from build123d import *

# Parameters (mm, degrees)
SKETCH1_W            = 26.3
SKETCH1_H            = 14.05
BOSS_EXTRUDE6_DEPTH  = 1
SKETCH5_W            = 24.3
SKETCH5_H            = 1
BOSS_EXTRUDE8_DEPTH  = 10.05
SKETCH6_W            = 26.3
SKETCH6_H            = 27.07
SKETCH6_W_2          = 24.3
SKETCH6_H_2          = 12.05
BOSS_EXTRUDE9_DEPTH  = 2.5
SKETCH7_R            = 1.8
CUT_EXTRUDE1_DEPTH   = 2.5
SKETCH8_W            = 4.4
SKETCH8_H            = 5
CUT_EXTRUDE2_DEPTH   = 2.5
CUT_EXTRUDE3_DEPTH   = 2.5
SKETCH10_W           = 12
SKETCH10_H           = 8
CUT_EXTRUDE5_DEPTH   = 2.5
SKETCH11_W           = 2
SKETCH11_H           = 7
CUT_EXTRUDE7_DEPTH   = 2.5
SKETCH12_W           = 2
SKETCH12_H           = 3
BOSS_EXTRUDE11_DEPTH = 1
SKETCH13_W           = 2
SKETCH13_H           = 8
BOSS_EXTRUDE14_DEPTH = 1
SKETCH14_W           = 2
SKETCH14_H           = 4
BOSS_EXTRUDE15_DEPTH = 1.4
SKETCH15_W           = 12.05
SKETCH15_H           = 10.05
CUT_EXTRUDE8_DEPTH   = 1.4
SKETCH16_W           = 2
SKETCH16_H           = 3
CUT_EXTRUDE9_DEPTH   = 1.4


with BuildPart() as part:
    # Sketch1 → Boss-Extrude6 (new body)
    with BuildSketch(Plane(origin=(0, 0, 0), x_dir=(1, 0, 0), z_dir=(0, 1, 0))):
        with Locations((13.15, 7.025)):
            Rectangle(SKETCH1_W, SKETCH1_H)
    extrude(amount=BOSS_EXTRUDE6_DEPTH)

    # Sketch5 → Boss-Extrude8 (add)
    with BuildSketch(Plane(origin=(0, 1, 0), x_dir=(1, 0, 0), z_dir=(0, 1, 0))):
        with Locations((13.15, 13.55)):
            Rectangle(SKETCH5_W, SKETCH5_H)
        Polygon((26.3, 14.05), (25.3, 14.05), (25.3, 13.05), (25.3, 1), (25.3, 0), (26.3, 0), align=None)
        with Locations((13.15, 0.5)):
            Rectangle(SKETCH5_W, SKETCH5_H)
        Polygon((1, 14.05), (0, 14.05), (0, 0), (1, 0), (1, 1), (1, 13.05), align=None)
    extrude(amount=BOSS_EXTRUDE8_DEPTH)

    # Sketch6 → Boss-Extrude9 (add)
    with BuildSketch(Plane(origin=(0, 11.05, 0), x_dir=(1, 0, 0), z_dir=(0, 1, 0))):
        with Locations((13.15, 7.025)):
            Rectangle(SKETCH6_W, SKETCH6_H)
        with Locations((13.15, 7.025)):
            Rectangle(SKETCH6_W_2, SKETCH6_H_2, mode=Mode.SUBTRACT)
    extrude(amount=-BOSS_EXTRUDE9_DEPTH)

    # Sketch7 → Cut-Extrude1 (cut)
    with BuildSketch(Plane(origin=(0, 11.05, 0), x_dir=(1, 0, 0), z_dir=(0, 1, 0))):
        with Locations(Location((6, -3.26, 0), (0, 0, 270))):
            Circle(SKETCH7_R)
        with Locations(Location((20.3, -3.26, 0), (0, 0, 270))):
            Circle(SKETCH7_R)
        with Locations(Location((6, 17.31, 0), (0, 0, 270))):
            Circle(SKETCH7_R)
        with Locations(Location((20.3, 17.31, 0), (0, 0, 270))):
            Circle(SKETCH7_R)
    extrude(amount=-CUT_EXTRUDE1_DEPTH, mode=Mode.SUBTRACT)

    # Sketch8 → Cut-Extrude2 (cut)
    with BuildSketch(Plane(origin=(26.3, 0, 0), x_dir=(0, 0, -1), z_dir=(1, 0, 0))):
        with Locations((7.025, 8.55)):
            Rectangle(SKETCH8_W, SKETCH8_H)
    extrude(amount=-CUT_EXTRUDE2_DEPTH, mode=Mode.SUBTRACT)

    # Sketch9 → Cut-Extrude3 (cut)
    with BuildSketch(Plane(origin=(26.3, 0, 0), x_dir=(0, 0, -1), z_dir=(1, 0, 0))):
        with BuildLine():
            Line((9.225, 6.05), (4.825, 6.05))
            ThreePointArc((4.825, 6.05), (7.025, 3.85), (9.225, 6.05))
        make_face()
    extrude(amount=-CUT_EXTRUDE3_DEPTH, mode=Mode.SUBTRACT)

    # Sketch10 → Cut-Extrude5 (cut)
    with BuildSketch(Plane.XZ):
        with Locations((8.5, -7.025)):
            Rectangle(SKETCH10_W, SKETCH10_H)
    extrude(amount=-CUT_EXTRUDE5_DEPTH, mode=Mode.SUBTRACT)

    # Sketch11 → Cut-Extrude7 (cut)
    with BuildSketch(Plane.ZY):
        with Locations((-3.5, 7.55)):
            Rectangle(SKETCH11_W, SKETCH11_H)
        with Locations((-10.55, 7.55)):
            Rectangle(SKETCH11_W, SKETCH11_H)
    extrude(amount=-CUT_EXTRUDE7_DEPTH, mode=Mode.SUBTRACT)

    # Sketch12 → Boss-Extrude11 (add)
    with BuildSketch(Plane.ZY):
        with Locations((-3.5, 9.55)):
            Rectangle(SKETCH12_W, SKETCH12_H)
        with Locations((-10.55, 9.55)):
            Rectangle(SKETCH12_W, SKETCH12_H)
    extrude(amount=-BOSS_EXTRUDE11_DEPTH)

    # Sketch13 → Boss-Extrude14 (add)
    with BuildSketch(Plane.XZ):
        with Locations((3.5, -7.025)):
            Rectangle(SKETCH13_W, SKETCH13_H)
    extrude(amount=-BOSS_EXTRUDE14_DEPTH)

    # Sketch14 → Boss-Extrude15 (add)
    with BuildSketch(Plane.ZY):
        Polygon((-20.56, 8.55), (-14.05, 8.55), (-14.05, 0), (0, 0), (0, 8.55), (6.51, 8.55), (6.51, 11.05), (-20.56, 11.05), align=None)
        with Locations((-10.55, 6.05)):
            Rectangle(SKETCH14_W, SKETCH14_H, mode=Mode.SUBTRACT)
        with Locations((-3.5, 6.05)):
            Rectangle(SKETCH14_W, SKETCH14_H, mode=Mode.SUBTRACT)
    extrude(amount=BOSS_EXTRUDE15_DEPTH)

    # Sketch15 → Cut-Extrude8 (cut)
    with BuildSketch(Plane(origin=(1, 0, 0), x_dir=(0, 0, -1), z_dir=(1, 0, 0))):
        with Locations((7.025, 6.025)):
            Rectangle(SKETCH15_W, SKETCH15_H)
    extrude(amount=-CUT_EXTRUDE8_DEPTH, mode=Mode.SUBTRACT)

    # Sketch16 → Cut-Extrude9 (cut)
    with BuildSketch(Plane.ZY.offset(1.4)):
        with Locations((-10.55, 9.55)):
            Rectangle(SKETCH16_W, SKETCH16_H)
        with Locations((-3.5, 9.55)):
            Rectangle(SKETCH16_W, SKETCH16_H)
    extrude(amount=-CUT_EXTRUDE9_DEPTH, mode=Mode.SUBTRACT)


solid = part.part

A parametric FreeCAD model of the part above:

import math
import FreeCAD as App
import Part
import Sketcher

V = App.Vector
Q = App.Units.Quantity


def add_polygon(sketch, points):
    """Adds a closed chain of lines whose ends are joined by coincident constraints."""
    first, n = sketch.GeometryCount, len(points)
    for a, b in zip(points, points[1:] + points[:1]):
        sketch.addGeometry(Part.LineSegment(App.Vector(*a, 0), App.Vector(*b, 0)), False)
    for i in range(n):
        sketch.addConstraint(Sketcher.Constraint("Coincident", first + i, 2, first + (i + 1) % n, 1))

doc = App.newDocument("Part")
body = doc.addObject("PartDesign::Body", "Body")

# Sketch on XZ plane
sketch1 = doc.addObject("Sketcher::SketchObject", "Sketch")
body.addObject(sketch1)
sketch1.AttachmentSupport = (doc.XZ_Plane, [""])
sketch1.MapMode = "FlatFace"
add_polygon(sketch1, [(0, -14), (0, 0), (26, 0), (26, -14)])  # lines 0-3
sketch1.addConstraint([
    Sketcher.Constraint("Vertical", 0),
    Sketcher.Constraint("Horizontal", 1),
    Sketcher.Constraint("Vertical", 2),
    Sketcher.Constraint("Horizontal", 3),
    Sketcher.Constraint("Coincident", 0, 2, -1, 1),
    Sketcher.Constraint("DistanceX", 1, 1, 1, 2, Q("26.3 mm")),
    Sketcher.Constraint("DistanceY", 0, 1, 0, 2, Q("14.05 mm")),
])
pad1 = doc.addObject("PartDesign::Pad", "Pad")
body.addObject(pad1)
pad1.Profile = sketch1
pad1.Length = 1
pad1.Reversed = True

# Sketch on XZ plane
sketch2 = doc.addObject("Sketcher::SketchObject", "Sketch001")
body.addObject(sketch2)
sketch2.AttachmentSupport = (doc.XZ_Plane, [""])
sketch2.MapMode = "FlatFace"
sketch2.AttachmentOffset = App.Placement(V(0, 0, -1), App.Rotation())
add_polygon(sketch2, [(26, 0), (26, -14), (0, -14), (0, 0)])  # lines 0-3
add_polygon(sketch2, [(1, -13), (25, -13), (25, -1), (1, -1)])  # lines 4-7
sketch2.addConstraint([
    Sketcher.Constraint("Vertical", 0),
    Sketcher.Constraint("Horizontal", 1),
    Sketcher.Constraint("Vertical", 2),
    Sketcher.Constraint("Horizontal", 3),
    Sketcher.Constraint("Horizontal", 4),
    Sketcher.Constraint("Vertical", 5),
    Sketcher.Constraint("Horizontal", 6),
    Sketcher.Constraint("Vertical", 7),
    Sketcher.Constraint("Coincident", 2, 2, -1, 1),
    Sketcher.Constraint("DistanceX", 1, 2, 1, 1, Q("26.3 mm")),
    Sketcher.Constraint("DistanceX", 4, 1, 4, 2, Q("24.3 mm")),
    Sketcher.Constraint("DistanceY", 5, 2, -1, 1, Q("1 mm")),
    Sketcher.Constraint("DistanceX", -1, 1, 6, 2, Q("1 mm")),
    Sketcher.Constraint("DistanceY", 0, 2, 4, 2, Q("1 mm")),
    Sketcher.Constraint("DistanceY", 0, 2, 0, 1, Q("14.05 mm")),
])
pad2 = doc.addObject("PartDesign::Pad", "Pad001")
body.addObject(pad2)
pad2.Profile = sketch2
pad2.Length = 10.05
pad2.Reversed = True

# Sketch on XZ plane
sketch3 = doc.addObject("Sketcher::SketchObject", "Sketch002")
body.addObject(sketch3)
sketch3.AttachmentSupport = (doc.XZ_Plane, [""])
sketch3.MapMode = "FlatFace"
sketch3.AttachmentOffset = App.Placement(V(0, 0, -11.05), App.Rotation())
add_polygon(sketch3, [(0, -21), (0, 7), (26, 7), (26, -21)])  # lines 0-3
add_polygon(sketch3, [(25, -1), (1, -1), (1, -13), (25, -13)])  # lines 4-7
sketch3.addConstraint([
    Sketcher.Constraint("Vertical", 0),
    Sketcher.Constraint("Horizontal", 1),
    Sketcher.Constraint("Vertical", 2),
    Sketcher.Constraint("Horizontal", 3),
    Sketcher.Constraint("Horizontal", 4),
    Sketcher.Constraint("Vertical", 5),
    Sketcher.Constraint("Horizontal", 6),
    Sketcher.Constraint("Vertical", 7),
    Sketcher.Constraint("PointOnObject", 0, 2, -2),
    Sketcher.Constraint("DistanceX", 1, 1, 1, 2, Q("26.3 mm")),
    Sketcher.Constraint("DistanceX", 4, 2, 4, 1, Q("24.3 mm")),
    Sketcher.Constraint("DistanceX", -1, 1, 4, 2, Q("1 mm")),
    Sketcher.Constraint("DistanceY", 4, 2, -1, 1, Q("1 mm")),
    Sketcher.Constraint("DistanceY", 0, 1, 0, 2, Q("27.07 mm")),
    Sketcher.Constraint("DistanceY", 5, 2, 5, 1, Q("12.05 mm")),
    Sketcher.Constraint("DistanceY", -1, 1, 0, 2, Q("6.51 mm")),
])
pad3 = doc.addObject("PartDesign::Pad", "Pad002")
body.addObject(pad3)
pad3.Profile = sketch3
pad3.Length = 2.5

# Sketch on XZ plane
sketch4 = doc.addObject("Sketcher::SketchObject", "Sketch003")
body.addObject(sketch4)
sketch4.AttachmentSupport = (doc.XZ_Plane, [""])
sketch4.MapMode = "FlatFace"
sketch4.AttachmentOffset = App.Placement(V(0, 0, -11.05), App.Rotation())
sketch4.addGeometry([
    Part.Circle(V(6, 3.3, 0), V(0, 0, 1), 1.8),
    Part.Circle(V(20.3, 3.3, 0), V(0, 0, 1), 1.8),
    Part.Circle(V(6, -17.3, 0), V(0, 0, 1), 1.8),
    Part.Circle(V(20.3, -17.3, 0), V(0, 0, 1), 1.8),
], False)
sketch4.addConstraint([
    Sketcher.Constraint("Equal", 0, 1),
    Sketcher.Constraint("Equal", 1, 2),
    Sketcher.Constraint("Equal", 2, 3),
    Sketcher.Constraint("Horizontal", 0, 3, 1, 3),
    Sketcher.Constraint("Horizontal", 2, 3, 3, 3),
    Sketcher.Constraint("Vertical", 0, 3, 2, 3),
    Sketcher.Constraint("Vertical", 1, 3, 3, 3),
    Sketcher.Constraint("Diameter", 0, Q("3.6 mm")),
    Sketcher.Constraint("DistanceX", -1, 1, 0, 3, Q("6 mm")),
    Sketcher.Constraint("DistanceX", -1, 1, 1, 3, Q("20.3 mm")),
    Sketcher.Constraint("DistanceY", -1, 1, 0, 3, Q("3.26 mm")),
    Sketcher.Constraint("DistanceY", 2, 3, -1, 1, Q("17.31 mm")),
])
pocket1 = doc.addObject("PartDesign::Pocket", "Pocket")
body.addObject(pocket1)
pocket1.Profile = sketch4
pocket1.Length = 2.5
pocket1.Reversed = True

# Sketch on YZ plane
sketch5 = doc.addObject("Sketcher::SketchObject", "Sketch004")
body.addObject(sketch5)
sketch5.AttachmentSupport = (doc.YZ_Plane, [""])
sketch5.MapMode = "FlatFace"
sketch5.AttachmentOffset = App.Placement(V(0, 0, 26.3), App.Rotation())
add_polygon(sketch5, [(11.1, -4.8), (6, -4.8), (6, -9.2), (11.1, -9.2)])  # lines 0-3
sketch5.addConstraint([
    Sketcher.Constraint("Horizontal", 0),
    Sketcher.Constraint("Vertical", 1),
    Sketcher.Constraint("Horizontal", 2),
    Sketcher.Constraint("Vertical", 3),
    Sketcher.Constraint("DistanceX", 0, 2, 0, 1, Q("5 mm")),
    Sketcher.Constraint("DistanceY", 1, 2, 1, 1, Q("4.4 mm")),
    Sketcher.Constraint("DistanceX", -1, 1, 0, 2, Q("6.05 mm")),
    Sketcher.Constraint("DistanceY", 0, 2, -1, 1, Q("4.825 mm")),
])
pocket2 = doc.addObject("PartDesign::Pocket", "Pocket001")
body.addObject(pocket2)
pocket2.Profile = sketch5
pocket2.Length = 2.5

# Sketch on YZ plane
sketch6 = doc.addObject("Sketcher::SketchObject", "Sketch005")
body.addObject(sketch6)
sketch6.AttachmentSupport = (doc.YZ_Plane, [""])
sketch6.MapMode = "FlatFace"
sketch6.AttachmentOffset = App.Placement(V(0, 0, 26.3), App.Rotation())
sketch6.addGeometry([
    Part.LineSegment(V(6, -9.2, 0), V(6, -4.8, 0)),
    Part.ArcOfCircle(Part.Circle(V(6, -7, 0), V(0, 0, 1), 2.2), math.radians(90), math.radians(270)),
], False)
sketch6.addConstraint([
    Sketcher.Constraint("Coincident", 0, 1, 1, 2),
    Sketcher.Constraint("Coincident", 1, 1, 0, 2),
    Sketcher.Constraint("Vertical", 0),
    Sketcher.Constraint("Vertical", 1, 3, 0, 1),
    Sketcher.Constraint("Radius", 1, Q("2.2 mm")),
    Sketcher.Constraint("DistanceX", -1, 1, 1, 3, Q("6.05 mm")),
    Sketcher.Constraint("DistanceY", 1, 3, -1, 1, Q("7.025 mm")),
])
pocket3 = doc.addObject("PartDesign::Pocket", "Pocket002")
body.addObject(pocket3)
pocket3.Profile = sketch6
pocket3.Length = 2.5

# Sketch on XZ plane
sketch7 = doc.addObject("Sketcher::SketchObject", "Sketch006")
body.addObject(sketch7)
sketch7.AttachmentSupport = (doc.XZ_Plane, [""])
sketch7.MapMode = "FlatFace"
add_polygon(sketch7, [(2, -3), (2, -11), (14, -11), (14, -3)])  # lines 0-3
sketch7.addConstraint([
    Sketcher.Constraint("Vertical", 0),
    Sketcher.Constraint("Horizontal", 1),
    Sketcher.Constraint("Vertical", 2),
    Sketcher.Constraint("Horizontal", 3),
    Sketcher.Constraint("DistanceX", 1, 1, 1, 2, Q("12 mm")),
    Sketcher.Constraint("DistanceY", 0, 2, 0, 1, Q("8 mm")),
    Sketcher.Constraint("DistanceX", -1, 1, 0, 2, Q("2.5 mm")),
    Sketcher.Constraint("DistanceY", 0, 2, -1, 1, Q("11.025 mm")),
])
pocket4 = doc.addObject("PartDesign::Pocket", "Pocket003")
body.addObject(pocket4)
pocket4.Profile = sketch7
pocket4.Length = 2.5

# Sketch on YZ plane
sketch8 = doc.addObject("Sketcher::SketchObject", "Sketch007")
body.addObject(sketch8)
sketch8.AttachmentSupport = (doc.YZ_Plane, [""])
sketch8.MapMode = "FlatFace"
add_polygon(sketch8, [(11.1, -4.5), (4, -4.5), (4, -2.5), (11.1, -2.5)])  # lines 0-3
add_polygon(sketch8, [(11.1, -11.6), (4, -11.6), (4, -9.6), (11.1, -9.6)])  # lines 4-7
sketch8.addConstraint([
    Sketcher.Constraint("Horizontal", 0),
    Sketcher.Constraint("Vertical", 1),
    Sketcher.Constraint("Horizontal", 2),
    Sketcher.Constraint("Vertical", 3),
    Sketcher.Constraint("Horizontal", 4),
    Sketcher.Constraint("Vertical", 5),
    Sketcher.Constraint("Horizontal", 6),
    Sketcher.Constraint("Vertical", 7),
    Sketcher.Constraint("Vertical", 1, 2, 4, 2),
    Sketcher.Constraint("Vertical", 3, 2, 6, 2),
    Sketcher.Constraint("Equal", 3, 5),
    Sketcher.Constraint("DistanceX", 0, 2, 0, 1, Q("7 mm")),
    Sketcher.Constraint("DistanceY", 1, 1, 1, 2, Q("2 mm")),
    Sketcher.Constraint("DistanceY", 0, 2, -1, 1, Q("4.5 mm")),
    Sketcher.Constraint("DistanceX", -1, 1, 0, 2, Q("4.05 mm")),
    Sketcher.Constraint("DistanceY", 4, 2, -1, 1, Q("11.55 mm")),
])
pocket5 = doc.addObject("PartDesign::Pocket", "Pocket004")
body.addObject(pocket5)
pocket5.Profile = sketch8
pocket5.Length = 2.5
pocket5.Reversed = True

# Sketch on YZ plane
sketch9 = doc.addObject("Sketcher::SketchObject", "Sketch008")
body.addObject(sketch9)
sketch9.AttachmentSupport = (doc.YZ_Plane, [""])
sketch9.MapMode = "FlatFace"
add_polygon(sketch9, [(11.1, -4.5), (8.1, -4.5), (8.1, -2.5), (11.1, -2.5)])  # lines 0-3
add_polygon(sketch9, [(11.1, -11.6), (8.1, -11.6), (8.1, -9.6), (11.1, -9.6)])  # lines 4-7
sketch9.addConstraint([
    Sketcher.Constraint("Horizontal", 0),
    Sketcher.Constraint("Vertical", 1),
    Sketcher.Constraint("Horizontal", 2),
    Sketcher.Constraint("Vertical", 3),
    Sketcher.Constraint("Horizontal", 4),
    Sketcher.Constraint("Vertical", 5),
    Sketcher.Constraint("Horizontal", 6),
    Sketcher.Constraint("Vertical", 7),
    Sketcher.Constraint("Vertical", 1, 2, 4, 2),
    Sketcher.Constraint("Vertical", 3, 2, 6, 2),
    Sketcher.Constraint("Equal", 3, 5),
    Sketcher.Constraint("DistanceX", 0, 2, 0, 1, Q("3 mm")),
    Sketcher.Constraint("DistanceY", 1, 1, 1, 2, Q("2 mm")),
    Sketcher.Constraint("DistanceY", 0, 2, -1, 1, Q("4.5 mm")),
    Sketcher.Constraint("DistanceX", -1, 1, 0, 2, Q("8.05 mm")),
    Sketcher.Constraint("DistanceY", 4, 2, -1, 1, Q("11.55 mm")),
])
pad4 = doc.addObject("PartDesign::Pad", "Pad003")
body.addObject(pad4)
pad4.Profile = sketch9
pad4.Length = 1

# Sketch on XZ plane
sketch10 = doc.addObject("Sketcher::SketchObject", "Sketch009")
body.addObject(sketch10)
sketch10.AttachmentSupport = (doc.XZ_Plane, [""])
sketch10.MapMode = "FlatFace"
add_polygon(sketch10, [(2.5, -3), (2.5, -11), (4.5, -11), (4.5, -3)])  # lines 0-3
sketch10.addConstraint([
    Sketcher.Constraint("Vertical", 0),
    Sketcher.Constraint("Horizontal", 1),
    Sketcher.Constraint("Vertical", 2),
    Sketcher.Constraint("Horizontal", 3),
    Sketcher.Constraint("DistanceX", 1, 1, 1, 2, Q("2 mm")),
    Sketcher.Constraint("DistanceY", 0, 2, 0, 1, Q("8 mm")),
    Sketcher.Constraint("DistanceX", -1, 1, 0, 2, Q("2.5 mm")),
    Sketcher.Constraint("DistanceY", 0, 2, -1, 1, Q("11.025 mm")),
])
pad5 = doc.addObject("PartDesign::Pad", "Pad004")
body.addObject(pad5)
pad5.Profile = sketch10
pad5.Length = 1
pad5.Reversed = True

# Sketch on YZ plane
sketch11 = doc.addObject("Sketcher::SketchObject", "Sketch010")
body.addObject(sketch11)
sketch11.AttachmentSupport = (doc.YZ_Plane, [""])
sketch11.MapMode = "FlatFace"
add_polygon(sketch11, [(8.6, -20.6), (8.6, -14.1), (0, -14.1), (0, 0), (8.6, 0), (8.6, 6.5), (11.1, 6.5), (11.1, -20.6)])  # lines 0-7
add_polygon(sketch11, [(4, -9.6), (4, -11.6), (8.1, -11.6), (8.1, -9.6)])  # lines 8-11
add_polygon(sketch11, [(4, -2.5), (4, -4.5), (8.1, -4.5), (8.1, -2.5)])  # lines 12-15
sketch11.addConstraint([
    Sketcher.Constraint("Vertical", 0),
    Sketcher.Constraint("Horizontal", 1),
    Sketcher.Constraint("Vertical", 2),
    Sketcher.Constraint("Horizontal", 3),
    Sketcher.Constraint("Vertical", 4),
    Sketcher.Constraint("Horizontal", 5),
    Sketcher.Constraint("Vertical", 6),
    Sketcher.Constraint("Horizontal", 7),
    Sketcher.Constraint("Vertical", 8),
    Sketcher.Constraint("Horizontal", 9),
    Sketcher.Constraint("Vertical", 10),
    Sketcher.Constraint("Horizontal", 11),
    Sketcher.Constraint("Vertical", 12),
    Sketcher.Constraint("Horizontal", 13),
    Sketcher.Constraint("Vertical", 14),
    Sketcher.Constraint("Horizontal", 15),
    Sketcher.Constraint("Coincident", 2, 2, -1, 1),
    Sketcher.Constraint("Vertical", 0, 2, 3, 2),
    Sketcher.Constraint("Vertical", 11, 2, 12, 2),
    Sketcher.Constraint("Vertical", 10, 2, 13, 2),
    Sketcher.Constraint("Equal", 0, 4),
    Sketcher.Constraint("Equal", 10, 12),
    Sketcher.Constraint("DistanceX", 9, 1, 9, 2, Q("4 mm")),
    Sketcher.Constraint("DistanceY", 8, 2, 8, 1, Q("2 mm")),
    Sketcher.Constraint("DistanceX", 5, 1, 5, 2, Q("2.5 mm")),
    Sketcher.Constraint("DistanceX", 8, 2, 6, 2, Q("7 mm")),
    Sketcher.Constraint("DistanceX", 1, 2, 1, 1, Q("8.55 mm")),
    Sketcher.Constraint("DistanceY", 0, 1, 0, 2, Q("6.51 mm")),
    Sketcher.Constraint("DistanceY", 2, 1, 2, 2, Q("14.05 mm")),
    Sketcher.Constraint("DistanceY", 12, 2, -1, 1, Q("4.5 mm")),
    Sketcher.Constraint("DistanceY", 1, 2, 8, 2, Q("2.5 mm")),
])
pad6 = doc.addObject("PartDesign::Pad", "Pad005")
body.addObject(pad6)
pad6.Profile = sketch11
pad6.Length = 1.4
pad6.Reversed = True

# Sketch on YZ plane
sketch12 = doc.addObject("Sketcher::SketchObject", "Sketch011")
body.addObject(sketch12)
sketch12.AttachmentSupport = (doc.YZ_Plane, [""])
sketch12.MapMode = "FlatFace"
sketch12.AttachmentOffset = App.Placement(V(0, 0, 1), App.Rotation())
add_polygon(sketch12, [(11, -1), (1, -1), (1, -13), (11, -13)])  # lines 0-3
sketch12.addConstraint([
    Sketcher.Constraint("Horizontal", 0),
    Sketcher.Constraint("Vertical", 1),
    Sketcher.Constraint("Horizontal", 2),
    Sketcher.Constraint("Vertical", 3),
    Sketcher.Constraint("DistanceX", -1, 1, 0, 2, Q("1 mm")),
    Sketcher.Constraint("DistanceY", 0, 2, -1, 1, Q("1 mm")),
    Sketcher.Constraint("DistanceX", 0, 2, 0, 1, Q("10.05 mm")),
    Sketcher.Constraint("DistanceY", 1, 2, 1, 1, Q("12.05 mm")),
])
pocket6 = doc.addObject("PartDesign::Pocket", "Pocket005")
body.addObject(pocket6)
pocket6.Profile = sketch12
pocket6.Length = 1.4

# Sketch on YZ plane
sketch13 = doc.addObject("Sketcher::SketchObject", "Sketch012")
body.addObject(sketch13)
sketch13.AttachmentSupport = (doc.YZ_Plane, [""])
sketch13.MapMode = "FlatFace"
sketch13.AttachmentOffset = App.Placement(V(0, 0, -1.4), App.Rotation())
add_polygon(sketch13, [(11.1, -11.6), (8.1, -11.6), (8.1, -9.6), (11.1, -9.6)])  # lines 0-3
add_polygon(sketch13, [(11.1, -4.5), (8.1, -4.5), (8.1, -2.5), (11.1, -2.5)])  # lines 4-7
sketch13.addConstraint([
    Sketcher.Constraint("Horizontal", 0),
    Sketcher.Constraint("Vertical", 1),
    Sketcher.Constraint("Horizontal", 2),
    Sketcher.Constraint("Vertical", 3),
    Sketcher.Constraint("Horizontal", 4),
    Sketcher.Constraint("Vertical", 5),
    Sketcher.Constraint("Horizontal", 6),
    Sketcher.Constraint("Vertical", 7),
    Sketcher.Constraint("Vertical", 1, 2, 4, 2),
    Sketcher.Constraint("Vertical", 3, 2, 6, 2),
    Sketcher.Constraint("Equal", 3, 5),
    Sketcher.Constraint("DistanceX", 0, 2, 0, 1, Q("3 mm")),
    Sketcher.Constraint("DistanceY", 1, 1, 1, 2, Q("2 mm")),
    Sketcher.Constraint("DistanceY", 4, 2, -1, 1, Q("4.5 mm")),
    Sketcher.Constraint("DistanceX", -1, 1, 0, 2, Q("8.05 mm")),
    Sketcher.Constraint("DistanceY", 0, 2, -1, 1, Q("11.55 mm")),
])
pocket7 = doc.addObject("PartDesign::Pocket", "Pocket006")
body.addObject(pocket7)
pocket7.Profile = sketch13
pocket7.Length = 1.4
pocket7.Reversed = True

doc.recompute()
